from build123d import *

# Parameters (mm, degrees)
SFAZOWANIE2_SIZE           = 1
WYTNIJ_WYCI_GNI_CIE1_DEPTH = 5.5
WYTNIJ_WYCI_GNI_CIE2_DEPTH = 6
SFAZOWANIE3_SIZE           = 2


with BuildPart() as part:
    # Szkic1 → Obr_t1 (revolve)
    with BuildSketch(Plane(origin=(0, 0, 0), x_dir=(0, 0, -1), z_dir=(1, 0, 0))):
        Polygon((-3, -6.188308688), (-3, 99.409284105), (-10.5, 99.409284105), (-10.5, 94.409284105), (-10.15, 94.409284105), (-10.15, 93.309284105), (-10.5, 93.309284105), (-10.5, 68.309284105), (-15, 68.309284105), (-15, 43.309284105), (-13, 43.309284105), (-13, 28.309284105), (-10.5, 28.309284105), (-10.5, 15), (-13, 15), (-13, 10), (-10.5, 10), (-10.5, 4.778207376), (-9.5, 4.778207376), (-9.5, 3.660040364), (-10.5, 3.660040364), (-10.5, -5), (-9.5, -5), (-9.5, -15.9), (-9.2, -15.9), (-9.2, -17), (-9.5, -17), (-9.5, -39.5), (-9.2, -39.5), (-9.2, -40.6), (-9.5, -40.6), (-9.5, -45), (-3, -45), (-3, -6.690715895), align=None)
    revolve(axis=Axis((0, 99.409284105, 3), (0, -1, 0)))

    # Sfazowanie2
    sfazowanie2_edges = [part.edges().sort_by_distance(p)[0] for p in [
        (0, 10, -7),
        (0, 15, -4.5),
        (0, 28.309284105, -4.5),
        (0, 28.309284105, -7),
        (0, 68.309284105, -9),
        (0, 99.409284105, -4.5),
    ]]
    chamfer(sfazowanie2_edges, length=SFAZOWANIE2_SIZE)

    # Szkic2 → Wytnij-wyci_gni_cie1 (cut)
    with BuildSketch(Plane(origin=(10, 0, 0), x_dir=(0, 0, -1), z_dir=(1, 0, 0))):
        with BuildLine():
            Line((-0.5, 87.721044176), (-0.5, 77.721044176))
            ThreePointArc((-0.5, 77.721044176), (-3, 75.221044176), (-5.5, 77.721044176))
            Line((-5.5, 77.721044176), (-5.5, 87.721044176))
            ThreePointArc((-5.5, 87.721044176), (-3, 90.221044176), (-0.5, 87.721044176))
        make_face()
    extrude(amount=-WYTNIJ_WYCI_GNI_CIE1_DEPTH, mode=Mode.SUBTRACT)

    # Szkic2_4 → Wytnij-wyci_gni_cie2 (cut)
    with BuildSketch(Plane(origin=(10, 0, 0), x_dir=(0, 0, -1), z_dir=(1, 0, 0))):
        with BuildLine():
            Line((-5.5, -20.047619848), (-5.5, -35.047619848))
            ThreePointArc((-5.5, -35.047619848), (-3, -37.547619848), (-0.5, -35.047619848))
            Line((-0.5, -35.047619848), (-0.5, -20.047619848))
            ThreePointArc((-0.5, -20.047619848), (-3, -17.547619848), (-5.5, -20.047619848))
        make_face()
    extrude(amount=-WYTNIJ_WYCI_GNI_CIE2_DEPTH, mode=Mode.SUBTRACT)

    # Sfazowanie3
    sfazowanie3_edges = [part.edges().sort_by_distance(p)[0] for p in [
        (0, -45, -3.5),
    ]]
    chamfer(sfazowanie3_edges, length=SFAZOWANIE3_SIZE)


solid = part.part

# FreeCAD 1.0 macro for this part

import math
import FreeCAD as App
import Part
import Sketcher
from FreeCAD import Vector
Q = App.Units.Quantity


def edges_at(feature, points):
    """Names of the edges that pass closest to the given points."""
    edges = feature.Shape.Edges
    near = lambda p: min(range(len(edges)), key=lambda i: edges[i].distToShape(Part.Vertex(*p))[0])
    return sorted({f"Edge{near(p) + 1}" for p in points})

doc = App.newDocument("Part")
body = doc.addObject("PartDesign::Body", "Body")

# Sketch on YZ plane
sketch1 = body.newObject("Sketcher::SketchObject", "Sketch")
sketch1.AttachmentSupport = (doc.getObject("YZ_Plane"), [""])
sketch1.MapMode = "FlatFace"
sketch1.addGeometry(Part.LineSegment(Vector(99.41, 3, 0), Vector(99.41, 10.5, 0)), False)
sketch1.addGeometry(Part.LineSegment(Vector(99.41, 10.5, 0), Vector(94.41, 10.5, 0)), False)
sketch1.addGeometry(Part.LineSegment(Vector(94.41, 10.5, 0), Vector(94.41, 10.15, 0)), False)
sketch1.addGeometry(Part.LineSegment(Vector(94.41, 10.15, 0), Vector(93.31, 10.15, 0)), False)
sketch1.addGeometry(Part.LineSegment(Vector(93.31, 10.15, 0), Vector(93.31, 10.5, 0)), False)
sketch1.addGeometry(Part.LineSegment(Vector(93.31, 10.5, 0), Vector(68.31, 10.5, 0)), False)
sketch1.addGeometry(Part.LineSegment(Vector(68.31, 10.5, 0), Vector(68.31, 15, 0)), False)
sketch1.addGeometry(Part.LineSegment(Vector(68.31, 15, 0), Vector(43.31, 15, 0)), False)
sketch1.addGeometry(Part.LineSegment(Vector(43.31, 15, 0), Vector(43.31, 13, 0)), False)
sketch1.addGeometry(Part.LineSegment(Vector(43.31, 13, 0), Vector(28.31, 13, 0)), False)
sketch1.addGeometry(Part.LineSegment(Vector(28.31, 13, 0), Vector(28.31, 10.5, 0)), False)
sketch1.addGeometry(Part.LineSegment(Vector(28.31, 10.5, 0), Vector(15, 10.5, 0)), False)
sketch1.addGeometry(Part.LineSegment(Vector(15, 10.5, 0), Vector(15, 13, 0)), False)
sketch1.addGeometry(Part.LineSegment(Vector(15, 13, 0), Vector(10, 13, 0)), False)
sketch1.addGeometry(Part.LineSegment(Vector(10, 13, 0), Vector(10, 10.5, 0)), False)
sketch1.addGeometry(Part.LineSegment(Vector(10, 10.5, 0), Vector(4.78, 10.5, 0)), False)
sketch1.addGeometry(Part.LineSegment(Vector(4.78, 10.5, 0), Vector(4.78, 9.5, 0)), False)
sketch1.addGeometry(Part.LineSegment(Vector(4.78, 9.5, 0), Vector(3.66, 9.5, 0)), False)
sketch1.addGeometry(Part.LineSegment(Vector(3.66, 9.5, 0), Vector(3.66, 10.5, 0)), False)
sketch1.addGeometry(Part.LineSegment(Vector(3.66, 10.5, 0), Vector(-5, 10.5, 0)), False)
sketch1.addGeometry(Part.LineSegment(Vector(-5, 10.5, 0), Vector(-5, 9.5, 0)), False)
sketch1.addGeometry(Part.LineSegment(Vector(-5, 9.5, 0), Vector(-15.9, 9.5, 0)), False)
sketch1.addGeometry(Part.LineSegment(Vector(-15.9, 9.5, 0), Vector(-15.9, 9.2, 0)), False)
sketch1.addGeometry(Part.LineSegment(Vector(-15.9, 9.2, 0), Vector(-17, 9.2, 0)), False)
sketch1.addGeometry(Part.LineSegment(Vector(-17, 9.2, 0), Vector(-17, 9.5, 0)), False)
sketch1.addGeometry(Part.LineSegment(Vector(-17, 9.5, 0), Vector(-39.5, 9.5, 0)), False)
sketch1.addGeometry(Part.LineSegment(Vector(-39.5, 9.5, 0), Vector(-39.5, 9.2, 0)), False)
sketch1.addGeometry(Part.LineSegment(Vector(-39.5, 9.2, 0), Vector(-40.6, 9.2, 0)), False)
sketch1.addGeometry(Part.LineSegment(Vector(-40.6, 9.2, 0), Vector(-40.6, 9.5, 0)), False)
sketch1.addGeometry(Part.LineSegment(Vector(-40.6, 9.5, 0), Vector(-45, 9.5, 0)), False)
sketch1.addGeometry(Part.LineSegment(Vector(-45, 9.5, 0), Vector(-45, 3, 0)), False)
sketch1.addGeometry(Part.LineSegment(Vector(-45, 3, 0), Vector(99.41, 3, 0)), False)
sketch1.addGeometry(Part.LineSegment(Vector(99.41, 3, 0), Vector(-45, 3, 0)), True)  # axis
sketch1.addConstraint(Sketcher.Constraint("Coincident", 0, 2, 1, 1))
sketch1.addConstraint(Sketcher.Constraint("Coincident", 1, 2, 2, 1))
sketch1.addConstraint(Sketcher.Constraint("Coincident", 2, 2, 3, 1))
sketch1.addConstraint(Sketcher.Constraint("Coincident", 3, 2, 4, 1))
sketch1.addConstraint(Sketcher.Constraint("Coincident", 4, 2, 5, 1))
sketch1.addConstraint(Sketcher.Constraint("Coincident", 5, 2, 6, 1))
sketch1.addConstraint(Sketcher.Constraint("Coincident", 6, 2, 7, 1))
sketch1.addConstraint(Sketcher.Constraint("Coincident", 7, 2, 8, 1))
sketch1.addConstraint(Sketcher.Constraint("Coincident", 8, 2, 9, 1))
sketch1.addConstraint(Sketcher.Constraint("Coincident", 9, 2, 10, 1))
sketch1.addConstraint(Sketcher.Constraint("Coincident", 10, 2, 11, 1))
sketch1.addConstraint(Sketcher.Constraint("Coincident", 11, 2, 12, 1))
sketch1.addConstraint(Sketcher.Constraint("Coincident", 12, 2, 13, 1))
sketch1.addConstraint(Sketcher.Constraint("Coincident", 13, 2, 14, 1))
sketch1.addConstraint(Sketcher.Constraint("Coincident", 14, 2, 15, 1))
sketch1.addConstraint(Sketcher.Constraint("Coincident", 15, 2, 16, 1))
sketch1.addConstraint(Sketcher.Constraint("Coincident", 16, 2, 17, 1))
sketch1.addConstraint(Sketcher.Constraint("Coincident", 17, 2, 18, 1))
sketch1.addConstraint(Sketcher.Constraint("Coincident", 18, 2, 19, 1))
sketch1.addConstraint(Sketcher.Constraint("Coincident", 19, 2, 20, 1))
sketch1.addConstraint(Sketcher.Constraint("Coincident", 20, 2, 21, 1))
sketch1.addConstraint(Sketcher.Constraint("Coincident", 21, 2, 22, 1))
sketch1.addConstraint(Sketcher.Constraint("Coincident", 22, 2, 23, 1))
sketch1.addConstraint(Sketcher.Constraint("Coincident", 23, 2, 24, 1))
sketch1.addConstraint(Sketcher.Constraint("Coincident", 24, 2, 25, 1))
sketch1.addConstraint(Sketcher.Constraint("Coincident", 25, 2, 26, 1))
sketch1.addConstraint(Sketcher.Constraint("Coincident", 26, 2, 27, 1))
sketch1.addConstraint(Sketcher.Constraint("Coincident", 27, 2, 28, 1))
sketch1.addConstraint(Sketcher.Constraint("Coincident", 28, 2, 29, 1))
sketch1.addConstraint(Sketcher.Constraint("Coincident", 29, 2, 30, 1))
sketch1.addConstraint(Sketcher.Constraint("Coincident", 30, 2, 31, 1))
sketch1.addConstraint(Sketcher.Constraint("Coincident", 31, 2, 0, 1))
sketch1.addConstraint(Sketcher.Constraint("Vertical", 0))
sketch1.addConstraint(Sketcher.Constraint("Horizontal", 1))
sketch1.addConstraint(Sketcher.Constraint("Vertical", 2))
sketch1.addConstraint(Sketcher.Constraint("Horizontal", 3))
sketch1.addConstraint(Sketcher.Constraint("Vertical", 4))
sketch1.addConstraint(Sketcher.Constraint("Horizontal", 5))
sketch1.addConstraint(Sketcher.Constraint("Vertical", 6))
sketch1.addConstraint(Sketcher.Constraint("Horizontal", 7))
sketch1.addConstraint(Sketcher.Constraint("Vertical", 8))
sketch1.addConstraint(Sketcher.Constraint("Horizontal", 9))
sketch1.addConstraint(Sketcher.Constraint("Vertical", 10))
sketch1.addConstraint(Sketcher.Constraint("Horizontal", 11))
sketch1.addConstraint(Sketcher.Constraint("Vertical", 12))
sketch1.addConstraint(Sketcher.Constraint("Horizontal", 13))
sketch1.addConstraint(Sketcher.Constraint("Vertical", 14))
sketch1.addConstraint(Sketcher.Constraint("Horizontal", 15))
sketch1.addConstraint(Sketcher.Constraint("Vertical", 16))
sketch1.addConstraint(Sketcher.Constraint("Horizontal", 17))
sketch1.addConstraint(Sketcher.Constraint("Vertical", 18))
sketch1.addConstraint(Sketcher.Constraint("Horizontal", 19))
sketch1.addConstraint(Sketcher.Constraint("Vertical", 20))
sketch1.addConstraint(Sketcher.Constraint("Horizontal", 21))
sketch1.addConstraint(Sketcher.Constraint("Vertical", 22))
sketch1.addConstraint(Sketcher.Constraint("Horizontal", 23))
sketch1.addConstraint(Sketcher.Constraint("Vertical", 24))
sketch1.addConstraint(Sketcher.Constraint("Horizontal", 25))
sketch1.addConstraint(Sketcher.Constraint("Vertical", 26))
sketch1.addConstraint(Sketcher.Constraint("Horizontal", 27))
sketch1.addConstraint(Sketcher.Constraint("Vertical", 28))
sketch1.addConstraint(Sketcher.Constraint("Horizontal", 29))
sketch1.addConstraint(Sketcher.Constraint("Vertical", 30))
sketch1.addConstraint(Sketcher.Constraint("Horizontal", 31))
sketch1.addConstraint(Sketcher.Constraint("Horizontal", 32))
sketch1.addConstraint(Sketcher.Constraint("Coincident", 32, 1, 31, 2))
sketch1.addConstraint(Sketcher.Constraint("Horizontal", 1, 2, 4, 2))
sketch1.addConstraint(Sketcher.Constraint("Horizontal", 5, 2, 10, 2))
sketch1.addConstraint(Sketcher.Constraint("Horizontal", 9, 2, 12, 2))
sketch1.addConstraint(Sketcher.Constraint("Horizontal", 11, 2, 14, 2))
sketch1.addConstraint(Sketcher.Constraint("Horizontal", 15, 2, 18, 2))
sketch1.addConstraint(Sketcher.Constraint("Horizontal", 17, 2, 20, 2))
sketch1.addConstraint(Sketcher.Constraint("Horizontal", 21, 2, 24, 2))
sketch1.addConstraint(Sketcher.Constraint("Horizontal", 23, 2, 26, 2))
sketch1.addConstraint(Sketcher.Constraint("Horizontal", 25, 2, 28, 2))
sketch1.addConstraint(Sketcher.Constraint("Vertical", 29, 2, 32, 2))
sketch1.addConstraint(Sketcher.Constraint("Equal", 5, 7))
sketch1.addConstraint(Sketcher.Constraint("Equal", 1, 13))
sketch1.addConstraint(Sketcher.Constraint("Equal", 3, 23))
sketch1.addConstraint(Sketcher.Constraint("Equal", 23, 27))
sketch1.addConstraint(Sketcher.Constraint("DistanceX", 1, 2, 1, 1, Q("5 mm")))
sketch1.addConstraint(Sketcher.Constraint("DistanceX", 5, 2, 5, 1, Q("25 mm")))
sketch1.addConstraint(Sketcher.Constraint("DistanceX", 9, 2, 9, 1, Q("15 mm")))
sketch1.addConstraint(Sketcher.Constraint("DistanceY", 8, 2, 8, 1, Q("2 mm")))
sketch1.addConstraint(Sketcher.Constraint("DistanceY", 16, 2, 16, 1, Q("1 mm")))
sketch1.addConstraint(Sketcher.Constraint("DistanceX", 3, 2, 3, 1, Q("1.1 mm")))
sketch1.addConstraint(Sketcher.Constraint("DistanceX", 21, 2, 21, 1, Q("10.9 mm")))
sketch1.addConstraint(Sketcher.Constraint("DistanceX", 25, 2, 25, 1, Q("22.5 mm")))
sketch1.addConstraint(Sketcher.Constraint("DistanceX", 29, 2, 29, 1, Q("4.4 mm")))
sketch1.addConstraint(Sketcher.Constraint("DistanceY", 0, 1, 0, 2, Q("7.5 mm")))
sketch1.addConstraint(Sketcher.Constraint("DistanceY", 6, 1, 6, 2, Q("4.5 mm")))
sketch1.addConstraint(Sketcher.Constraint("DistanceY", 22, 2, 22, 1, Q("0.3 mm")))
sketch1.addConstraint(Sketcher.Constraint("DistanceY", -1, 1, 6, 2, Q("15 mm")))
sketch1.addConstraint(Sketcher.Constraint("DistanceX", -1, 1, 11, 2, Q("15 mm")))
sketch1.addConstraint(Sketcher.Constraint("DistanceX", 19, 2, -1, 1, Q("5 mm")))
sketch1.addConstraint(Sketcher.Constraint("DistanceY", 2, 2, 2, 1, Q("0.35 mm")))
sketch1.addConstraint(Sketcher.Constraint("DistanceX", 19, 2, 19, 1, Q("8.66004 mm")))
sketch1.addConstraint(Sketcher.Constraint("DistanceX", 11, 2, 11, 1, Q("13.309284 mm")))
sketch1.addConstraint(Sketcher.Constraint("DistanceX", 15, 2, 15, 1, Q("5.221793 mm")))
revolution = body.newObject("PartDesign::Revolution", "Revolution")
revolution.Profile = sketch1
revolution.ReferenceAxis = (sketch1, ["Axis0"])
revolution.Angle = 360
doc.recompute()

chamfer = body.newObject("PartDesign::Chamfer", "Chamfer")
chamfer.Base = (revolution, edges_at(revolution, [
    (0, 10, -7),
    (0, 15, -4.5),
    (0, 28.309, -4.5),
    (0, 28.309, -7),
    (0, 68.309, -9),
    (0, 99.409, -4.5),
]))
chamfer.Size = 1

# Sketch on YZ plane
sketch2 = body.newObject("Sketcher::SketchObject", "Sketch001")
sketch2.AttachmentSupport = (doc.getObject("YZ_Plane"), [""])
sketch2.MapMode = "FlatFace"
sketch2.AttachmentOffset = App.Placement(Vector(0, 0, 10), App.Rotation())
sketch2.addGeometry(Part.LineSegment(Vector(77.7, 0.5, 0), Vector(87.7, 0.5, 0)), False)
sketch2.addGeometry(Part.ArcOfCircle(Part.Circle(Vector(87.7, 3, 0), Vector(0, 0, 1), 2.5), math.radians(-90), math.radians(90)), False)
sketch2.addGeometry(Part.LineSegment(Vector(87.7, 5.5, 0), Vector(77.7, 5.5, 0)), False)
sketch2.addGeometry(Part.ArcOfCircle(Part.Circle(Vector(77.7, 3, 0), Vector(0, 0, 1), 2.5), math.radians(90), math.radians(270)), False)
sketch2.addConstraint(Sketcher.Constraint("Tangent", 0, 2, 1, 1))
sketch2.addConstraint(Sketcher.Constraint("Tangent", 1, 2, 2, 1))
sketch2.addConstraint(Sketcher.Constraint("Tangent", 2, 2, 3, 1))
sketch2.addConstraint(Sketcher.Constraint("Tangent", 3, 2, 0, 1))
sketch2.addConstraint(Sketcher.Constraint("Horizontal", 0))
sketch2.addConstraint(Sketcher.Constraint("Horizontal", 2))
sketch2.addConstraint(Sketcher.Constraint("Radius", 1, Q("2.5 mm")))
sketch2.addConstraint(Sketcher.Constraint("DistanceX", 0, 1, 0, 2, Q("10 mm")))
sketch2.addConstraint(Sketcher.Constraint("DistanceY", -1, 1, 1, 3, Q("3 mm")))
sketch2.addConstraint(Sketcher.Constraint("DistanceX", -1, 1, 1, 3, Q("87.721044 mm")))
pocket1 = body.newObject("PartDesign::Pocket", "Pocket")
pocket1.Profile = sketch2
pocket1.Length = 5.5

# Sketch on YZ plane
sketch3 = body.newObject("Sketcher::SketchObject", "Sketch002")
sketch3.AttachmentSupport = (doc.getObject("YZ_Plane"), [""])
sketch3.MapMode = "FlatFace"
sketch3.AttachmentOffset = App.Placement(Vector(0, 0, 10), App.Rotation())
sketch3.addGeometry(Part.LineSegment(Vector(-20, 5.5, 0), Vector(-35, 5.5, 0)), False)
sketch3.addGeometry(Part.ArcOfCircle(Part.Circle(Vector(-35, 3, 0), Vector(0, 0, 1), 2.5), math.radians(90), math.radians(270)), False)
sketch3.addGeometry(Part.LineSegment(Vector(-35, 0.5, 0), Vector(-20, 0.5, 0)), False)
sketch3.addGeometry(Part.ArcOfCircle(Part.Circle(Vector(-20, 3, 0), Vector(0, 0, 1), 2.5), math.radians(-90), math.radians(90)), False)
sketch3.addConstraint(Sketcher.Constraint("Tangent", 0, 2, 1, 1))
sketch3.addConstraint(Sketcher.Constraint("Tangent", 1, 2, 2, 1))
sketch3.addConstraint(Sketcher.Constraint("Tangent", 2, 2, 3, 1))
sketch3.addConstraint(Sketcher.Constraint("Tangent", 3, 2, 0, 1))
sketch3.addConstraint(Sketcher.Constraint("Horizontal", 0))
sketch3.addConstraint(Sketcher.Constraint("Horizontal", 2))
sketch3.addConstraint(Sketcher.Constraint("Radius", 1, Q("2.5 mm")))
sketch3.addConstraint(Sketcher.Constraint("DistanceX", 0, 2, 0, 1, Q("15 mm")))
sketch3.addConstraint(Sketcher.Constraint("DistanceY", -1, 1, 1, 3, Q("3 mm")))
sketch3.addConstraint(Sketcher.Constraint("DistanceX", 1, 3, -1, 1, Q("35.04762 mm")))
pocket2 = body.newObject("PartDesign::Pocket", "Pocket001")
pocket2.Profile = sketch3
pocket2.Length = 6
doc.recompute()

chamfer2 = body.newObject("PartDesign::Chamfer", "Chamfer001")
chamfer2.Base = (pocket2, edges_at(pocket2, [(0, -45, -3.5)]))
chamfer2.Size = 2

doc.recompute()
